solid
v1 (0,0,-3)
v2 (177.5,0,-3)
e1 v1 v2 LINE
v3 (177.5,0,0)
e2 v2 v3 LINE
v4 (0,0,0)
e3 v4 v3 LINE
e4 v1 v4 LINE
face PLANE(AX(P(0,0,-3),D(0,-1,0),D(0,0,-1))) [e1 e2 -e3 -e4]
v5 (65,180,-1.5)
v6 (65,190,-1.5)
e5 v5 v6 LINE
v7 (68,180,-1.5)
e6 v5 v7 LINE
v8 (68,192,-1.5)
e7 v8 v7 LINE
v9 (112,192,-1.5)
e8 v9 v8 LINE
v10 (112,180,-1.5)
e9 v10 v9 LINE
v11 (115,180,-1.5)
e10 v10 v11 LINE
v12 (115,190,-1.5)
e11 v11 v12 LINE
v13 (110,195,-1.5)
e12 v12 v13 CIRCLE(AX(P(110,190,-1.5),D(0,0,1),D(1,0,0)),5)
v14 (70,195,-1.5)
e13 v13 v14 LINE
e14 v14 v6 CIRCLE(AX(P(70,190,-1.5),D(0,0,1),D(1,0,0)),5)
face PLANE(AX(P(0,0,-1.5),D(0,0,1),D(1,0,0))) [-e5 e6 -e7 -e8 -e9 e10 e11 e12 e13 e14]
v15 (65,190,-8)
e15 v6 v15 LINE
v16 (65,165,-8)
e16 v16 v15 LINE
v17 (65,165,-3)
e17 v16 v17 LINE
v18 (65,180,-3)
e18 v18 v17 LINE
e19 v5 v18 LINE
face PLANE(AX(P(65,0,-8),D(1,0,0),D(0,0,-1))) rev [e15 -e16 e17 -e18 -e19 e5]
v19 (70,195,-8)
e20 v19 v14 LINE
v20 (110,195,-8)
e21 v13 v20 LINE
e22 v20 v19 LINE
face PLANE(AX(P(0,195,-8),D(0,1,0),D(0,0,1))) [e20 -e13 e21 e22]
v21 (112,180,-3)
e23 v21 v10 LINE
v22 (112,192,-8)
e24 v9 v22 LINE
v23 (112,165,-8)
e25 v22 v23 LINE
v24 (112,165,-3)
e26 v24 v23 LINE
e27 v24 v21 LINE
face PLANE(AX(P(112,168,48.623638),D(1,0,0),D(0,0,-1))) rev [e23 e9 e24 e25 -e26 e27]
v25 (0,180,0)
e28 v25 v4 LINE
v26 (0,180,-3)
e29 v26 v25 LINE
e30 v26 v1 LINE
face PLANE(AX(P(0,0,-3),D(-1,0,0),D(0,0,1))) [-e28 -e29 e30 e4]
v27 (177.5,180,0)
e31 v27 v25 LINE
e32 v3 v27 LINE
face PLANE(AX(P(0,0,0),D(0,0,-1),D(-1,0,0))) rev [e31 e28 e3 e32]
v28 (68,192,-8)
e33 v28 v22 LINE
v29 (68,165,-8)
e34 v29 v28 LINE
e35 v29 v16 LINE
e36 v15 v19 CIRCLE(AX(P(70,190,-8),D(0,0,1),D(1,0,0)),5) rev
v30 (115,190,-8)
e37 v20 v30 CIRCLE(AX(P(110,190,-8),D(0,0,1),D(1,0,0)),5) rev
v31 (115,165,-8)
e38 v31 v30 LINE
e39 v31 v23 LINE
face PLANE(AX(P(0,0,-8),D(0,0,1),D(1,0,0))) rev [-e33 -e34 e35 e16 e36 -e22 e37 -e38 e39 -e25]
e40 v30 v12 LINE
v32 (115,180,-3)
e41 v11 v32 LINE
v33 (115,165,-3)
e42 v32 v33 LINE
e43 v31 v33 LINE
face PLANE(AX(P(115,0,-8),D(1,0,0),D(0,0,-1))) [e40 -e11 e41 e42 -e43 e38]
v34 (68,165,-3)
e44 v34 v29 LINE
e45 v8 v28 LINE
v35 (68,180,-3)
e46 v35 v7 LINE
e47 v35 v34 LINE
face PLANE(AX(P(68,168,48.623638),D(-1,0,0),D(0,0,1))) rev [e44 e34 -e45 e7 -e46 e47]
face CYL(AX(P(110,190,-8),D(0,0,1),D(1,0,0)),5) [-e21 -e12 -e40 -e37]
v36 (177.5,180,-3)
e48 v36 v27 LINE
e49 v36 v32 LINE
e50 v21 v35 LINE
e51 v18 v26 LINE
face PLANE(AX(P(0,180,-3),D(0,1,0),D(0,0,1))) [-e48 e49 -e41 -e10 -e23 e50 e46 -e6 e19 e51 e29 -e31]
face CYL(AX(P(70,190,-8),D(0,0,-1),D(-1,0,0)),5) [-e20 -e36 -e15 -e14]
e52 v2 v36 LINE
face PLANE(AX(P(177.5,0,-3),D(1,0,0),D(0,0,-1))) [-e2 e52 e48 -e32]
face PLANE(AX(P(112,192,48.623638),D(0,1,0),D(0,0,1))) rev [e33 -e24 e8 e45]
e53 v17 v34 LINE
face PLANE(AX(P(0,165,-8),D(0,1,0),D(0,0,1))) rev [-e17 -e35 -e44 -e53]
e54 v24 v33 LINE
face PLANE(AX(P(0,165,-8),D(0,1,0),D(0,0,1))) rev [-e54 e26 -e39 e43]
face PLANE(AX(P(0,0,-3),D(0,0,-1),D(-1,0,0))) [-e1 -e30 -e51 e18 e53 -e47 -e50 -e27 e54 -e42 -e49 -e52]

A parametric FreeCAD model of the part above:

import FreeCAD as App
import Part
import Sketcher


def edges_at(feature, points):
    """Names of the edges that pass closest to the given points."""
    edges = feature.Shape.Edges
    near = lambda p: min(range(len(edges)), key=lambda i: edges[i].distToShape(Part.Vertex(*p))[0])
    return sorted({f"Edge{near(p) + 1}" for p in points})


def add_polygon(sketch, points):
    """Adds a closed chain of lines whose ends are joined by coincident constraints."""
    first, n = sketch.GeometryCount, len(points)
    for a, b in zip(points, points[1:] + points[:1]):
        sketch.addGeometry(Part.LineSegment(App.Vector(*a, 0), App.Vector(*b, 0)), False)
    for i in range(n):
        sketch.addConstraint(Sketcher.Constraint("Coincident", first + i, 2, first + (i + 1) % n, 1))

doc = App.newDocument("Part")
body = doc.addObject("PartDesign::Body", "Body")

# Sketch on XY plane
sketch1 = body.newObject("Sketcher::SketchObject", "Sketch")
sketch1.AttachmentSupport = (doc.getObject("XY_Plane"), [""])
sketch1.MapMode = "FlatFace"
add_polygon(sketch1, [(0, 180), (0, 0), (178, 0), (178, 180)])  # lines 0-3
sketch1.addConstraint([
    Sketcher.Constraint("Vertical", 0),
    Sketcher.Constraint("Horizontal", 1),
    Sketcher.Constraint("Vertical", 2),
    Sketcher.Constraint("Horizontal", 3),
    Sketcher.Constraint("Coincident", 0, 2, -1, 1),
    Sketcher.Constraint("DistanceY", 0, 2, 0, 1, 180.0),
    Sketcher.Constraint("DistanceX", 1, 1, 1, 2, 177.5),
])
pad1 = body.newObject("PartDesign::Pad", "Pad")
pad1.Profile = sketch1
pad1.Length = 3
pad1.Reversed = True

# Sketch on XY plane
sketch2 = body.newObject("Sketcher::SketchObject", "Sketch001")
sketch2.AttachmentSupport = (doc.getObject("XY_Plane"), [""])
sketch2.MapMode = "FlatFace"
sketch2.AttachmentOffset = App.Placement(App.Vector(0, 0, -1.5), App.Rotation())
add_polygon(sketch2, [(65, 195), (65, 165), (115, 165), (115, 195)])  # lines 0-3
sketch2.addConstraint([
    Sketcher.Constraint("Vertical", 0),
    Sketcher.Constraint("Horizontal", 1),
    Sketcher.Constraint("Vertical", 2),
    Sketcher.Constraint("Horizontal", 3),
    Sketcher.Constraint("DistanceX", 1, 1, 1, 2, 50.0),
    Sketcher.Constraint("DistanceY", 0, 2, 0, 1, 30.0),
    Sketcher.Constraint("DistanceX", -1, 1, 0, 2, 65.0),
    Sketcher.Constraint("DistanceY", -1, 1, 0, 2, 165.0),
])
pad2 = body.newObject("PartDesign::Pad", "Pad001")
pad2.Profile = sketch2
pad2.Length = 6.5
pad2.Reversed = True

# Sketch on XY plane
sketch3 = body.newObject("Sketcher::SketchObject", "Sketch002")
sketch3.AttachmentSupport = (doc.getObject("XY_Plane"), [""])
sketch3.MapMode = "FlatFace"
sketch3.AttachmentOffset = App.Placement(App.Vector(0, 0, -8), App.Rotation())
add_polygon(sketch3, [(112, 165), (68, 165), (68, 192), (112, 192)])  # lines 0-3
sketch3.addConstraint([
    Sketcher.Constraint("Horizontal", 0),
    Sketcher.Constraint("Vertical", 1),
    Sketcher.Constraint("Horizontal", 2),
    Sketcher.Constraint("Vertical", 3),
    Sketcher.Constraint("DistanceX", 0, 2, 0, 1, 44.0),
    Sketcher.Constraint("DistanceY", 1, 1, 1, 2, 27.0),
    Sketcher.Constraint("DistanceX", -1, 1, 0, 2, 68.0),
    Sketcher.Constraint("DistanceY", -1, 1, 0, 2, 165.0),
])
pocket1 = body.newObject("PartDesign::Pocket", "Pocket")
pocket1.Profile = sketch3
pocket1.Length = 5
pocket1.Reversed = True

# Sketch on XY plane
sketch4 = body.newObject("Sketcher::SketchObject", "Sketch003")
sketch4.AttachmentSupport = (doc.getObject("XY_Plane"), [""])
sketch4.MapMode = "FlatFace"
sketch4.AttachmentOffset = App.Placement(App.Vector(0, 0, -1.5), App.Rotation())
add_polygon(sketch4, [(68, 192), (68, 180), (112, 180), (112, 192)])  # lines 0-3
sketch4.addConstraint([
    Sketcher.Constraint("Vertical", 0),
    Sketcher.Constraint("Horizontal", 1),
    Sketcher.Constraint("Vertical", 2),
    Sketcher.Constraint("Horizontal", 3),
    Sketcher.Constraint("DistanceX", 1, 1, 1, 2, 44.0),
    Sketcher.Constraint("DistanceY", 0, 2, 0, 1, 12.0),
    Sketcher.Constraint("DistanceX", -1, 1, 0, 2, 68.0),
    Sketcher.Constraint("DistanceY", -1, 1, 0, 2, 180.0),
])
pocket2 = body.newObject("PartDesign::Pocket", "Pocket001")
pocket2.Profile = sketch4
pocket2.Length = 6.5
doc.recompute()

fillet = body.newObject("PartDesign::Fillet", "Fillet")
fillet.Base = (pocket2, edges_at(pocket2, [(115, 195, -4.75)]))
fillet.Radius = 5
doc.recompute()

fillet2 = body.newObject("PartDesign::Fillet", "Fillet001")
fillet2.Base = (fillet, edges_at(fillet, [(65, 195, -4.75)]))
fillet2.Radius = 5

doc.recompute()
